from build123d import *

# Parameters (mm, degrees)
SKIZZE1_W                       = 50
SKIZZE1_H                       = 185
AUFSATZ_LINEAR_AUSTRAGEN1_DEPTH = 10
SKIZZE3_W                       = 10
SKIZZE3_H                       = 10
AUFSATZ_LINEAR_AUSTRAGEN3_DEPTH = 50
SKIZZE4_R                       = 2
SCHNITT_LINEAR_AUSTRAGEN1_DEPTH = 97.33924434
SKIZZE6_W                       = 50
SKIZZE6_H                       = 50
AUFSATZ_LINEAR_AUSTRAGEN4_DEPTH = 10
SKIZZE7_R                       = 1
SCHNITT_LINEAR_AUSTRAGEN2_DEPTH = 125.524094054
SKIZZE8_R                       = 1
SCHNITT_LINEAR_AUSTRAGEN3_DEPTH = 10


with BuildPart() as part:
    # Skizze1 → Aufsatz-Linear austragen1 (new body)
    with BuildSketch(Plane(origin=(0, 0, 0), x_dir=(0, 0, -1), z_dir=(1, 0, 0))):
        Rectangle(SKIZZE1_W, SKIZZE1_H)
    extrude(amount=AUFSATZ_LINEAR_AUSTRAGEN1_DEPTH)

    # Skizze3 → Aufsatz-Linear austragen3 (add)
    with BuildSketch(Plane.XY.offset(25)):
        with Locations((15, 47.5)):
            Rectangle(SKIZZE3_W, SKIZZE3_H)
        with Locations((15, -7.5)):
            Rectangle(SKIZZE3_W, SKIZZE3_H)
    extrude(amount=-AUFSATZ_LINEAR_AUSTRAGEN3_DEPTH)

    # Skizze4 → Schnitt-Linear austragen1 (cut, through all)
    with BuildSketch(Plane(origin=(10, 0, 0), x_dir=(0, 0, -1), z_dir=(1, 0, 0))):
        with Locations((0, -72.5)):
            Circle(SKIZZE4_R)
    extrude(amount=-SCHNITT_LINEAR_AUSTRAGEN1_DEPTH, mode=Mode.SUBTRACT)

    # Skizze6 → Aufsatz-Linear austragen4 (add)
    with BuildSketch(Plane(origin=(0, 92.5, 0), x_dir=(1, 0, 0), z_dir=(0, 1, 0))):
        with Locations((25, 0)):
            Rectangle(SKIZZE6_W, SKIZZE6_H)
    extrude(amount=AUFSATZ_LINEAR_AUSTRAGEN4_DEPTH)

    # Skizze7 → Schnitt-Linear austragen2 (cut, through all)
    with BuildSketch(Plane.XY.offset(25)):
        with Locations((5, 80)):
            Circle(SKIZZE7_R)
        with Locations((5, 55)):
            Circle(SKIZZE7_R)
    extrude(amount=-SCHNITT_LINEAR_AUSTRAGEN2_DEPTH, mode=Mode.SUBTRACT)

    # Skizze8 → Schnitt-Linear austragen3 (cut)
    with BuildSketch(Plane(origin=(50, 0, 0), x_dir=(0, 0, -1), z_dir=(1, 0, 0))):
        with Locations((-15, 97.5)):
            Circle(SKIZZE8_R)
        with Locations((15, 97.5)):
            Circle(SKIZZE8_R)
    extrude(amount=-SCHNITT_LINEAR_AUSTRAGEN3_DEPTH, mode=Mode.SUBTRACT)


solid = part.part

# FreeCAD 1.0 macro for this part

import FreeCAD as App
import Part
import Sketcher
Q = App.Units.Quantity

doc = App.newDocument("Part")
body = doc.addObject("PartDesign::Body", "Body")

# Sketch on YZ plane
sketch1 = body.newObject("Sketcher::SketchObject", "Sketch")
sketch1.AttachmentSupport = (doc.getObject("YZ_Plane"), [""])
sketch1.MapMode = "FlatFace"
sketch1.addGeometry(Part.LineSegment(App.Vector(92, 25, 0), App.Vector(-92, 25, 0)), False)
sketch1.addGeometry(Part.LineSegment(App.Vector(-92, 25, 0), App.Vector(-92, -25, 0)), False)
sketch1.addGeometry(Part.LineSegment(App.Vector(-92, -25, 0), App.Vector(92, -25, 0)), False)
sketch1.addGeometry(Part.LineSegment(App.Vector(92, -25, 0), App.Vector(92, 25, 0)), False)
sketch1.addConstraint(Sketcher.Constraint("Coincident", 0, 2, 1, 1))
sketch1.addConstraint(Sketcher.Constraint("Coincident", 1, 2, 2, 1))
sketch1.addConstraint(Sketcher.Constraint("Coincident", 2, 2, 3, 1))
sketch1.addConstraint(Sketcher.Constraint("Coincident", 3, 2, 0, 1))
sketch1.addConstraint(Sketcher.Constraint("Horizontal", 0))
sketch1.addConstraint(Sketcher.Constraint("Vertical", 1))
sketch1.addConstraint(Sketcher.Constraint("Horizontal", 2))
sketch1.addConstraint(Sketcher.Constraint("Vertical", 3))
sketch1.addConstraint(Sketcher.Constraint("Symmetric", 0, 2, 2, 2, -1, 1))
sketch1.addConstraint(Sketcher.Constraint("DistanceX", 0, 2, 0, 1, Q("185 mm")))
sketch1.addConstraint(Sketcher.Constraint("DistanceY", 1, 2, 1, 1, Q("50 mm")))
pad1 = body.newObject("PartDesign::Pad", "Pad")
pad1.Profile = sketch1
pad1.Length = 10

# Sketch on XY plane
sketch2 = body.newObject("Sketcher::SketchObject", "Sketch001")
sketch2.AttachmentSupport = (doc.getObject("XY_Plane"), [""])
sketch2.MapMode = "FlatFace"
sketch2.AttachmentOffset = App.Placement(App.Vector(0, 0, 25), App.Rotation())
sketch2.addGeometry(Part.LineSegment(App.Vector(10, 52, 0), App.Vector(10, 42, 0)), False)
sketch2.addGeometry(Part.LineSegment(App.Vector(10, 42, 0), App.Vector(20, 42, 0)), False)
sketch2.addGeometry(Part.LineSegment(App.Vector(20, 42, 0), App.Vector(20, 52, 0)), False)
sketch2.addGeometry(Part.LineSegment(App.Vector(20, 52, 0), App.Vector(10, 52, 0)), False)
sketch2.addGeometry(Part.LineSegment(App.Vector(10, -2, 0), App.Vector(10, -12, 0)), False)
sketch2.addGeometry(Part.LineSegment(App.Vector(10, -12, 0), App.Vector(20, -12, 0)), False)
sketch2.addGeometry(Part.LineSegment(App.Vector(20, -12, 0), App.Vector(20, -2, 0)), False)
sketch2.addGeometry(Part.LineSegment(App.Vector(20, -2, 0), App.Vector(10, -2, 0)), False)
sketch2.addConstraint(Sketcher.Constraint("Coincident", 0, 2, 1, 1))
sketch2.addConstraint(Sketcher.Constraint("Coincident", 1, 2, 2, 1))
sketch2.addConstraint(Sketcher.Constraint("Coincident", 2, 2, 3, 1))
sketch2.addConstraint(Sketcher.Constraint("Coincident", 3, 2, 0, 1))
sketch2.addConstraint(Sketcher.Constraint("Coincident", 4, 2, 5, 1))
sketch2.addConstraint(Sketcher.Constraint("Coincident", 5, 2, 6, 1))
sketch2.addConstraint(Sketcher.Constraint("Coincident", 6, 2, 7, 1))
sketch2.addConstraint(Sketcher.Constraint("Coincident", 7, 2, 4, 1))
sketch2.addConstraint(Sketcher.Constraint("Vertical", 0))
sketch2.addConstraint(Sketcher.Constraint("Horizontal", 1))
sketch2.addConstraint(Sketcher.Constraint("Vertical", 2))
sketch2.addConstraint(Sketcher.Constraint("Horizontal", 3))
sketch2.addConstraint(Sketcher.Constraint("Vertical", 4))
sketch2.addConstraint(Sketcher.Constraint("Horizontal", 5))
sketch2.addConstraint(Sketcher.Constraint("Vertical", 6))
sketch2.addConstraint(Sketcher.Constraint("Horizontal", 7))
sketch2.addConstraint(Sketcher.Constraint("Vertical", 3, 2, 4, 2))
sketch2.addConstraint(Sketcher.Constraint("Vertical", 2, 2, 5, 2))
sketch2.addConstraint(Sketcher.Constraint("Equal", 7, 0))
sketch2.addConstraint(Sketcher.Constraint("Equal", 2, 4))
sketch2.addConstraint(Sketcher.Constraint("DistanceX", 1, 1, 1, 2, Q("10 mm")))
sketch2.addConstraint(Sketcher.Constraint("DistanceX", -1, 1, 0, 2, Q("10 mm")))
sketch2.addConstraint(Sketcher.Constraint("DistanceY", 4, 2, 0, 2, Q("55 mm")))
sketch2.addConstraint(Sketcher.Constraint("DistanceY", -1, 1, 0, 2, Q("42.5 mm")))
pad2 = body.newObject("PartDesign::Pad", "Pad001")
pad2.Profile = sketch2
pad2.Length = 50
pad2.Reversed = True

# Sketch on YZ plane
sketch3 = body.newObject("Sketcher::SketchObject", "Sketch002")
sketch3.AttachmentSupport = (doc.getObject("YZ_Plane"), [""])
sketch3.MapMode = "FlatFace"
sketch3.AttachmentOffset = App.Placement(App.Vector(0, 0, 10), App.Rotation())
sketch3.addGeometry(Part.Circle(App.Vector(-72.5, 0, 0), App.Vector(0, 0, 1), 2), False)
sketch3.addConstraint(Sketcher.Constraint("PointOnObject", 0, 3, -1))
sketch3.addConstraint(Sketcher.Constraint("Diameter", 0, Q("4 mm")))
sketch3.addConstraint(Sketcher.Constraint("DistanceX", 0, 3, -1, 1, Q("72.5 mm")))
pocket1 = body.newObject("PartDesign::Pocket", "Pocket")
pocket1.Profile = sketch3
pocket1.Type = "ThroughAll"

# Sketch on XZ plane
sketch4 = body.newObject("Sketcher::SketchObject", "Sketch003")
sketch4.AttachmentSupport = (doc.getObject("XZ_Plane"), [""])
sketch4.MapMode = "FlatFace"
sketch4.AttachmentOffset = App.Placement(App.Vector(0, 0, -92.5), App.Rotation())
sketch4.addGeometry(Part.LineSegment(App.Vector(0, -25, 0), App.Vector(0, 25, 0)), False)
sketch4.addGeometry(Part.LineSegment(App.Vector(0, 25, 0), App.Vector(50, 25, 0)), False)
sketch4.addGeometry(Part.LineSegment(App.Vector(50, 25, 0), App.Vector(50, -25, 0)), False)
sketch4.addGeometry(Part.LineSegment(App.Vector(50, -25, 0), App.Vector(0, -25, 0)), False)
sketch4.addConstraint(Sketcher.Constraint("Coincident", 0, 2, 1, 1))
sketch4.addConstraint(Sketcher.Constraint("Coincident", 1, 2, 2, 1))
sketch4.addConstraint(Sketcher.Constraint("Coincident", 2, 2, 3, 1))
sketch4.addConstraint(Sketcher.Constraint("Coincident", 3, 2, 0, 1))
sketch4.addConstraint(Sketcher.Constraint("Vertical", 0))
sketch4.addConstraint(Sketcher.Constraint("Horizontal", 1))
sketch4.addConstraint(Sketcher.Constraint("Vertical", 2))
sketch4.addConstraint(Sketcher.Constraint("Horizontal", 3))
sketch4.addConstraint(Sketcher.Constraint("Symmetric", 0, 2, 3, 2, -1, 1))
sketch4.addConstraint(Sketcher.Constraint("Equal", 3, 0))
sketch4.addConstraint(Sketcher.Constraint("DistanceX", 1, 1, 1, 2, Q("50 mm")))
pad3 = body.newObject("PartDesign::Pad", "Pad002")
pad3.Profile = sketch4
pad3.Length = 10
pad3.Reversed = True

# Sketch on XY plane
sketch5 = body.newObject("Sketcher::SketchObject", "Sketch004")
sketch5.AttachmentSupport = (doc.getObject("XY_Plane"), [""])
sketch5.MapMode = "FlatFace"
sketch5.AttachmentOffset = App.Placement(App.Vector(0, 0, 25), App.Rotation())
sketch5.addGeometry(Part.Circle(App.Vector(5, 80, 0), App.Vector(0, 0, 1), 1), False)
sketch5.addGeometry(Part.Circle(App.Vector(5, 55, 0), App.Vector(0, 0, 1), 1), False)
sketch5.addConstraint(Sketcher.Constraint("Equal", 0, 1))
sketch5.addConstraint(Sketcher.Constraint("Vertical", 0, 3, 1, 3))
sketch5.addConstraint(Sketcher.Constraint("Diameter", 0, Q("2 mm")))
sketch5.addConstraint(Sketcher.Constraint("DistanceX", -1, 1, 0, 3, Q("5 mm")))
sketch5.addConstraint(Sketcher.Constraint("DistanceY", -1, 1, 0, 3, Q("80 mm")))
sketch5.addConstraint(Sketcher.Constraint("DistanceY", -1, 1, 1, 3, Q("55 mm")))
pocket2 = body.newObject("PartDesign::Pocket", "Pocket001")
pocket2.Profile = sketch5
pocket2.Type = "ThroughAll"

# Sketch on YZ plane
sketch6 = body.newObject("Sketcher::SketchObject", "Sketch005")
sketch6.AttachmentSupport = (doc.getObject("YZ_Plane"), [""])
sketch6.MapMode = "FlatFace"
sketch6.AttachmentOffset = App.Placement(App.Vector(0, 0, 50), App.Rotation())
sketch6.addGeometry(Part.Circle(App.Vector(97.5, 15, 0), App.Vector(0, 0, 1), 1), False)
sketch6.addGeometry(Part.Circle(App.Vector(97.5, -15, 0), App.Vector(0, 0, 1), 1), False)
sketch6.addConstraint(Sketcher.Constraint("Equal", 0, 1))
sketch6.addConstraint(Sketcher.Constraint("Symmetric", 0, 3, 1, 3, -1))
sketch6.addConstraint(Sketcher.Constraint("Diameter", 0, Q("2 mm")))
sketch6.addConstraint(Sketcher.Constraint("DistanceY", -1, 1, 0, 3, Q("15 mm")))
sketch6.addConstraint(Sketcher.Constraint("DistanceX", -1, 1, 0, 3, Q("97.5 mm")))
pocket3 = body.newObject("PartDesign::Pocket", "Pocket002")
pocket3.Profile = sketch6
pocket3.Length = 10

doc.recompute()
